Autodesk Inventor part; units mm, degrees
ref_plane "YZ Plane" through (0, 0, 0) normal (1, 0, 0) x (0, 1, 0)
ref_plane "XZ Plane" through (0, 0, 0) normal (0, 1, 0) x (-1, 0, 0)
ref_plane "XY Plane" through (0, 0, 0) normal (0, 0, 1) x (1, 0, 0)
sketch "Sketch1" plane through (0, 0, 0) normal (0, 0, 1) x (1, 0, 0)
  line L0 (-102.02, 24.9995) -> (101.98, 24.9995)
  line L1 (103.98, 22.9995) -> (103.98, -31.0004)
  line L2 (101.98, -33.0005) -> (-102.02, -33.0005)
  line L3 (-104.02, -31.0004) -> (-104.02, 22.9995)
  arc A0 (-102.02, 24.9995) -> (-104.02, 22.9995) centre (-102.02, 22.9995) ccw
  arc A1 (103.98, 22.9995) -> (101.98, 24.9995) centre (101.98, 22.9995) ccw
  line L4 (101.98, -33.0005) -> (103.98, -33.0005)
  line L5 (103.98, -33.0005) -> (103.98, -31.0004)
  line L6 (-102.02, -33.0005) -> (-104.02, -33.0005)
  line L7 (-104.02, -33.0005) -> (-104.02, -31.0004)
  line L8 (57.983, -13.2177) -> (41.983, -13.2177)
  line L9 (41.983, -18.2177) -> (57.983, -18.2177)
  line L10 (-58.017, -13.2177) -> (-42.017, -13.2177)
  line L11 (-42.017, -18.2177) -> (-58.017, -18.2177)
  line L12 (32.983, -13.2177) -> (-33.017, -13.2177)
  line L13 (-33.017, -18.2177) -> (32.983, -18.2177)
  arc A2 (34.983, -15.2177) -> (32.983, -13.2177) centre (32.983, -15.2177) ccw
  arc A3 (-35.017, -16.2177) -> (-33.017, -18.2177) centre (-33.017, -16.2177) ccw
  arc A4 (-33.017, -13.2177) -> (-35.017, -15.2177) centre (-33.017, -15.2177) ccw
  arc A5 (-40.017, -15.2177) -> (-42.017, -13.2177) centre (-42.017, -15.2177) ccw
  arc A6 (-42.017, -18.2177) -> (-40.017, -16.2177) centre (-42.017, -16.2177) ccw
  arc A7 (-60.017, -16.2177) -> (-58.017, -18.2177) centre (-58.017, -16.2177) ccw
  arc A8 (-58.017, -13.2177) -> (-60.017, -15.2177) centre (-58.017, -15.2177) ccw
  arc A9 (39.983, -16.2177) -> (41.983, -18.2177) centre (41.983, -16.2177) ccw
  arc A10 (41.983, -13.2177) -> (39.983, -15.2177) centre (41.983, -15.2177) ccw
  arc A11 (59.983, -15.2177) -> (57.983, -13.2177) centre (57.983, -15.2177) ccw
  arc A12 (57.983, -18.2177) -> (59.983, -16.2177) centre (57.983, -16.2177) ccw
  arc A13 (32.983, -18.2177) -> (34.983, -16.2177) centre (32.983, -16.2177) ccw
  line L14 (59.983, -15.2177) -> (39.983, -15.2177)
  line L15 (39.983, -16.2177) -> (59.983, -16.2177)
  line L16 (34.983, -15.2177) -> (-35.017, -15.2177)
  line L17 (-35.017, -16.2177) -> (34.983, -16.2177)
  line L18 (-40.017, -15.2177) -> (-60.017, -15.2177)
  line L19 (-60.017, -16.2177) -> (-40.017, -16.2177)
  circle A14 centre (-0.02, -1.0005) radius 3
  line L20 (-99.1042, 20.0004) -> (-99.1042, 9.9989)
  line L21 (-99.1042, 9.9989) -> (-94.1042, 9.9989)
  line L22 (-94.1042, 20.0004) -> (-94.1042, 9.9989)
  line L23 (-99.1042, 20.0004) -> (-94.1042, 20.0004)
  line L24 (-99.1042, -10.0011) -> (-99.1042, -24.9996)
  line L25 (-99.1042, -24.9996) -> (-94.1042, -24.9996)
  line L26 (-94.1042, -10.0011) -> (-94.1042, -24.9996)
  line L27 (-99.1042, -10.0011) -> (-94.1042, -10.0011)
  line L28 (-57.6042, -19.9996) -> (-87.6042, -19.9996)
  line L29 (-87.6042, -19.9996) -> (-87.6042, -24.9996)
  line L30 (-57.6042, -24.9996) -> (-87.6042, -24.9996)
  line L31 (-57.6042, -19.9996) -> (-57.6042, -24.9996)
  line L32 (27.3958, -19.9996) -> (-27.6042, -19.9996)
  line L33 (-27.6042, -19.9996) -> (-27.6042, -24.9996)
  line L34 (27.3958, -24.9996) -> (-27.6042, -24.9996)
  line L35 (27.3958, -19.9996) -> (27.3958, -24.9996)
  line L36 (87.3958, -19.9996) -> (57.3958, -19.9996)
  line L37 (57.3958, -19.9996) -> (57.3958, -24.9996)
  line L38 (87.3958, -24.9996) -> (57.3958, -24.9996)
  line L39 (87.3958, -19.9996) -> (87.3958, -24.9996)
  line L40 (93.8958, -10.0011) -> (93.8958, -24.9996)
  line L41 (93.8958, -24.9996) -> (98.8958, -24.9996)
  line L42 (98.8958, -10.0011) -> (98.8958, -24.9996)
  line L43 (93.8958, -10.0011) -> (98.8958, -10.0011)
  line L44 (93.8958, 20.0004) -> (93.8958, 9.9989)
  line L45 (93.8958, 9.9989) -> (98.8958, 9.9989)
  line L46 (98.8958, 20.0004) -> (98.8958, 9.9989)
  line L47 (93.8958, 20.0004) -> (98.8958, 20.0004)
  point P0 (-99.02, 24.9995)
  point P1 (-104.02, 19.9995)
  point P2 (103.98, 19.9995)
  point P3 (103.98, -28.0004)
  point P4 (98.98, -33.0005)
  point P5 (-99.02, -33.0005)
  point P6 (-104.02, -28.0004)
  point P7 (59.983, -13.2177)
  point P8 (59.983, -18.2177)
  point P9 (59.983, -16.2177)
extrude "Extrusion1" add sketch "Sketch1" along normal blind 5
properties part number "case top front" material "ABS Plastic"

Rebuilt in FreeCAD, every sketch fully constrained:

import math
import FreeCAD as App
import Part
import Sketcher
from FreeCAD import Vector
Q = App.Units.Quantity


def add_polygon(sketch, points):
    """Adds a closed chain of lines whose ends are joined by coincident constraints."""
    first, n = sketch.GeometryCount, len(points)
    for a, b in zip(points, points[1:] + points[:1]):
        sketch.addGeometry(Part.LineSegment(App.Vector(*a, 0), App.Vector(*b, 0)), False)
    for i in range(n):
        sketch.addConstraint(Sketcher.Constraint("Coincident", first + i, 2, first + (i + 1) % n, 1))

doc = App.newDocument("Part")
body = doc.addObject("PartDesign::Body", "Body")

sketch1 = body.newObject("Sketcher::SketchObject", "Sketch")
sketch1.AttachmentSupport = (doc.getObject("XY_Plane"), [""])
sketch1.MapMode = "FlatFace"
sketch1.addGeometry(Part.LineSegment(Vector(101.98, 24.9995, 0), Vector(-102.02, 24.9995, 0)), False)
sketch1.addGeometry(Part.ArcOfCircle(Part.Circle(Vector(-102.02, 22.9995, 0), Vector(0, 0, 1), 2), math.radians(90), math.radians(180)), False)
sketch1.addGeometry(Part.LineSegment(Vector(-104.02, 22.9995, 0), Vector(-104.02, -33.0005, 0)), False)
sketch1.addGeometry(Part.LineSegment(Vector(-104.02, -33.0005, 0), Vector(103.98, -33.0005, 0)), False)
sketch1.addGeometry(Part.LineSegment(Vector(103.98, -33.0005, 0), Vector(103.98, 22.9995, 0)), False)
sketch1.addGeometry(Part.ArcOfCircle(Part.Circle(Vector(101.98, 22.9995, 0), Vector(0, 0, 1), 2), math.radians(0), math.radians(90)), False)
add_polygon(sketch1, [(-87.6042, -19.9996), (-57.6042, -19.9996), (-57.6042, -24.9996), (-87.6042, -24.9996)])
add_polygon(sketch1, [(-27.6042, -19.9996), (27.3958, -19.9996), (27.3958, -24.9996), (-27.6042, -24.9996)])
add_polygon(sketch1, [(-99.1042, -24.9996), (-99.1042, -10.0011), (-94.1042, -10.0011), (-94.1042, -24.9996)])
sketch1.addGeometry(Part.ArcOfCircle(Part.Circle(Vector(-42.017, -16.2177, 0), Vector(0, 0, 1), 2), math.radians(-90), math.radians(0)), False)
sketch1.addGeometry(Part.LineSegment(Vector(-42.017, -18.2177, 0), Vector(-58.017, -18.2177, 0)), False)
sketch1.addGeometry(Part.ArcOfCircle(Part.Circle(Vector(-58.017, -16.2177, 0), Vector(0, 0, 1), 2), math.radians(180), math.radians(270)), False)
sketch1.addGeometry(Part.LineSegment(Vector(-60.017, -16.2177, 0), Vector(-40.017, -16.2177, 0)), False)
sketch1.addGeometry(Part.ArcOfCircle(Part.Circle(Vector(-58.017, -15.2177, 0), Vector(0, 0, 1), 2), math.radians(90), math.radians(180)), False)
sketch1.addGeometry(Part.LineSegment(Vector(-58.017, -13.2177, 0), Vector(-42.017, -13.2177, 0)), False)
sketch1.addGeometry(Part.ArcOfCircle(Part.Circle(Vector(-42.017, -15.2177, 0), Vector(0, 0, 1), 2), math.radians(0), math.radians(90)), False)
sketch1.addGeometry(Part.LineSegment(Vector(-40.017, -15.2177, 0), Vector(-60.017, -15.2177, 0)), False)
add_polygon(sketch1, [(57.3958, -19.9996), (87.3958, -19.9996), (87.3958, -24.9996), (57.3958, -24.9996)])
sketch1.addGeometry(Part.LineSegment(Vector(32.983, -18.2177, 0), Vector(-33.017, -18.2177, 0)), False)
sketch1.addGeometry(Part.ArcOfCircle(Part.Circle(Vector(-33.017, -16.2177, 0), Vector(0, 0, 1), 2), math.radians(180), math.radians(270)), False)
sketch1.addGeometry(Part.LineSegment(Vector(-35.017, -16.2177, 0), Vector(34.983, -16.2177, 0)), False)
sketch1.addGeometry(Part.ArcOfCircle(Part.Circle(Vector(32.983, -16.2177, 0), Vector(0, 0, 1), 2), math.radians(-90), math.radians(0)), False)
sketch1.addGeometry(Part.LineSegment(Vector(-33.017, -13.2177, 0), Vector(32.983, -13.2177, 0)), False)
sketch1.addGeometry(Part.ArcOfCircle(Part.Circle(Vector(32.983, -15.2177, 0), Vector(0, 0, 1), 2), math.radians(0), math.radians(90)), False)
sketch1.addGeometry(Part.LineSegment(Vector(34.983, -15.2177, 0), Vector(-35.017, -15.2177, 0)), False)
sketch1.addGeometry(Part.ArcOfCircle(Part.Circle(Vector(-33.017, -15.2177, 0), Vector(0, 0, 1), 2), math.radians(90), math.radians(180)), False)
sketch1.addGeometry(Part.LineSegment(Vector(57.983, -18.2177, 0), Vector(41.983, -18.2177, 0)), False)
sketch1.addGeometry(Part.ArcOfCircle(Part.Circle(Vector(41.983, -16.2177, 0), Vector(0, 0, 1), 2), math.radians(180), math.radians(270)), False)
sketch1.addGeometry(Part.LineSegment(Vector(39.983, -16.2177, 0), Vector(59.983, -16.2177, 0)), False)
sketch1.addGeometry(Part.ArcOfCircle(Part.Circle(Vector(57.983, -16.2177, 0), Vector(0, 0, 1), 2), math.radians(-90), math.radians(0)), False)
sketch1.addGeometry(Part.LineSegment(Vector(41.983, -13.2177, 0), Vector(57.983, -13.2177, 0)), False)
sketch1.addGeometry(Part.ArcOfCircle(Part.Circle(Vector(57.983, -15.2177, 0), Vector(0, 0, 1), 2), math.radians(0), math.radians(90)), False)
sketch1.addGeometry(Part.LineSegment(Vector(59.983, -15.2177, 0), Vector(39.983, -15.2177, 0)), False)
sketch1.addGeometry(Part.ArcOfCircle(Part.Circle(Vector(41.983, -15.2177, 0), Vector(0, 0, 1), 2), math.radians(90), math.radians(180)), False)
add_polygon(sketch1, [(93.8958, -24.9996), (93.8958, -10.0011), (98.8958, -10.0011), (98.8958, -24.9996)])
add_polygon(sketch1, [(-99.1042, 9.9989), (-99.1042, 20.0004), (-94.1042, 20.0004), (-94.1042, 9.9989)])
sketch1.addGeometry(Part.Circle(Vector(-0.02, -1.0005, 0), Vector(0, 0, 1), 3), False)
add_polygon(sketch1, [(93.8958, 9.9989), (93.8958, 20.0004), (98.8958, 20.0004), (98.8958, 9.9989)])
sketch1.addConstraint(Sketcher.Constraint("Tangent", 0, 2, 1, 1))
sketch1.addConstraint(Sketcher.Constraint("Tangent", 1, 2, 2, 1))
sketch1.addConstraint(Sketcher.Constraint("Coincident", 2, 2, 3, 1))
sketch1.addConstraint(Sketcher.Constraint("Coincident", 3, 2, 4, 1))
sketch1.addConstraint(Sketcher.Constraint("Tangent", 4, 2, 5, 1))
sketch1.addConstraint(Sketcher.Constraint("Tangent", 5, 2, 0, 1))
sketch1.addConstraint(Sketcher.Constraint("Tangent", 18, 1, 19, 1))
sketch1.addConstraint(Sketcher.Constraint("Tangent", 19, 2, 20, 2))
sketch1.addConstraint(Sketcher.Constraint("Coincident", 20, 1, 21, 1))
sketch1.addConstraint(Sketcher.Constraint("Coincident", 21, 2, 18, 2))
sketch1.addConstraint(Sketcher.Constraint("Tangent", 22, 1, 23, 1))
sketch1.addConstraint(Sketcher.Constraint("Tangent", 23, 2, 24, 2))
sketch1.addConstraint(Sketcher.Constraint("Coincident", 24, 1, 25, 1))
sketch1.addConstraint(Sketcher.Constraint("Coincident", 25, 2, 22, 2))
sketch1.addConstraint(Sketcher.Constraint("Tangent", 30, 2, 31, 2))
sketch1.addConstraint(Sketcher.Constraint("Coincident", 31, 1, 32, 1))
sketch1.addConstraint(Sketcher.Constraint("Coincident", 32, 2, 33, 2))
sketch1.addConstraint(Sketcher.Constraint("Tangent", 33, 1, 30, 1))
sketch1.addConstraint(Sketcher.Constraint("Tangent", 34, 2, 35, 2))
sketch1.addConstraint(Sketcher.Constraint("Coincident", 35, 1, 36, 1))
sketch1.addConstraint(Sketcher.Constraint("Coincident", 36, 2, 37, 2))
sketch1.addConstraint(Sketcher.Constraint("Tangent", 37, 1, 34, 1))
sketch1.addConstraint(Sketcher.Constraint("Tangent", 38, 2, 39, 2))
sketch1.addConstraint(Sketcher.Constraint("Coincident", 39, 1, 40, 1))
sketch1.addConstraint(Sketcher.Constraint("Coincident", 40, 2, 41, 2))
sketch1.addConstraint(Sketcher.Constraint("Tangent", 41, 1, 38, 1))
sketch1.addConstraint(Sketcher.Constraint("Tangent", 42, 2, 43, 2))
sketch1.addConstraint(Sketcher.Constraint("Coincident", 43, 1, 44, 1))
sketch1.addConstraint(Sketcher.Constraint("Coincident", 44, 2, 45, 2))
sketch1.addConstraint(Sketcher.Constraint("Tangent", 45, 1, 42, 1))
sketch1.addConstraint(Sketcher.Constraint("Horizontal", 0))
sketch1.addConstraint(Sketcher.Constraint("Vertical", 2))
sketch1.addConstraint(Sketcher.Constraint("Horizontal", 3))
sketch1.addConstraint(Sketcher.Constraint("Vertical", 4))
sketch1.addConstraint(Sketcher.Constraint("Horizontal", 6))
sketch1.addConstraint(Sketcher.Constraint("Vertical", 7))
sketch1.addConstraint(Sketcher.Constraint("Horizontal", 8))
sketch1.addConstraint(Sketcher.Constraint("Vertical", 9))
sketch1.addConstraint(Sketcher.Constraint("Horizontal", 10))
sketch1.addConstraint(Sketcher.Constraint("Vertical", 11))
sketch1.addConstraint(Sketcher.Constraint("Horizontal", 12))
sketch1.addConstraint(Sketcher.Constraint("Vertical", 13))
sketch1.addConstraint(Sketcher.Constraint("Vertical", 14))
sketch1.addConstraint(Sketcher.Constraint("Horizontal", 15))
sketch1.addConstraint(Sketcher.Constraint("Vertical", 16))
sketch1.addConstraint(Sketcher.Constraint("Horizontal", 17))
sketch1.addConstraint(Sketcher.Constraint("Horizontal", 19))
sketch1.addConstraint(Sketcher.Constraint("Horizontal", 21))
sketch1.addConstraint(Sketcher.Constraint("Horizontal", 23))
sketch1.addConstraint(Sketcher.Constraint("Horizontal", 25))
sketch1.addConstraint(Sketcher.Constraint("Horizontal", 26))
sketch1.addConstraint(Sketcher.Constraint("Vertical", 27))
sketch1.addConstraint(Sketcher.Constraint("Horizontal", 28))
sketch1.addConstraint(Sketcher.Constraint("Vertical", 29))
sketch1.addConstraint(Sketcher.Constraint("Horizontal", 30))
sketch1.addConstraint(Sketcher.Constraint("Horizontal", 32))
sketch1.addConstraint(Sketcher.Constraint("Horizontal", 34))
sketch1.addConstraint(Sketcher.Constraint("Horizontal", 36))
sketch1.addConstraint(Sketcher.Constraint("Horizontal", 38))
sketch1.addConstraint(Sketcher.Constraint("Horizontal", 40))
sketch1.addConstraint(Sketcher.Constraint("Horizontal", 42))
sketch1.addConstraint(Sketcher.Constraint("Horizontal", 44))
sketch1.addConstraint(Sketcher.Constraint("Vertical", 46))
sketch1.addConstraint(Sketcher.Constraint("Horizontal", 47))
sketch1.addConstraint(Sketcher.Constraint("Vertical", 48))
sketch1.addConstraint(Sketcher.Constraint("Horizontal", 49))
sketch1.addConstraint(Sketcher.Constraint("Vertical", 50))
sketch1.addConstraint(Sketcher.Constraint("Horizontal", 51))
sketch1.addConstraint(Sketcher.Constraint("Vertical", 52))
sketch1.addConstraint(Sketcher.Constraint("Horizontal", 53))
sketch1.addConstraint(Sketcher.Constraint("Vertical", 55))
sketch1.addConstraint(Sketcher.Constraint("Horizontal", 56))
sketch1.addConstraint(Sketcher.Constraint("Vertical", 57))
sketch1.addConstraint(Sketcher.Constraint("Horizontal", 58))
sketch1.addConstraint(Sketcher.Constraint("Equal", 1, 5))
sketch1.addConstraint(Sketcher.Constraint("Equal", 5, 18))
sketch1.addConstraint(Sketcher.Constraint("Equal", 18, 20))
sketch1.addConstraint(Sketcher.Constraint("Equal", 20, 22))
sketch1.addConstraint(Sketcher.Constraint("Equal", 22, 24))
sketch1.addConstraint(Sketcher.Constraint("Equal", 24, 31))
sketch1.addConstraint(Sketcher.Constraint("Equal", 31, 33))
sketch1.addConstraint(Sketcher.Constraint("Equal", 33, 35))
sketch1.addConstraint(Sketcher.Constraint("Equal", 35, 37))
sketch1.addConstraint(Sketcher.Constraint("Equal", 37, 39))
sketch1.addConstraint(Sketcher.Constraint("Equal", 39, 41))
sketch1.addConstraint(Sketcher.Constraint("Equal", 41, 43))
sketch1.addConstraint(Sketcher.Constraint("Equal", 43, 45))
sketch1.addConstraint(Sketcher.Constraint("Horizontal", 20, 3, 31, 3))
sketch1.addConstraint(Sketcher.Constraint("Horizontal", 24, 3, 35, 3))
sketch1.addConstraint(Sketcher.Constraint("Horizontal", 33, 3, 39, 3))
sketch1.addConstraint(Sketcher.Constraint("Horizontal", 37, 3, 43, 3))
sketch1.addConstraint(Sketcher.Constraint("Horizontal", 9, 2, 10, 2))
sketch1.addConstraint(Sketcher.Constraint("Horizontal", 8, 2, 11, 2))
sketch1.addConstraint(Sketcher.Constraint("Horizontal", 12, 2, 16, 2))
sketch1.addConstraint(Sketcher.Constraint("Horizontal", 41, 3, 20, 1))
sketch1.addConstraint(Sketcher.Constraint("Horizontal", 45, 3, 24, 1))
sketch1.addConstraint(Sketcher.Constraint("Horizontal", 13, 2, 26, 2))
sketch1.addConstraint(Sketcher.Constraint("Horizontal", 17, 2, 27, 2))
sketch1.addConstraint(Sketcher.Constraint("Horizontal", 21, 2, 31, 1))
sketch1.addConstraint(Sketcher.Constraint("Horizontal", 25, 2, 35, 1))
sketch1.addConstraint(Sketcher.Constraint("Horizontal", 32, 2, 39, 1))
sketch1.addConstraint(Sketcher.Constraint("Horizontal", 36, 2, 43, 1))
sketch1.addConstraint(Sketcher.Constraint("Horizontal", 15, 2, 46, 2))
sketch1.addConstraint(Sketcher.Constraint("Horizontal", 28, 2, 48, 2))
sketch1.addConstraint(Sketcher.Constraint("Horizontal", 51, 2, 55, 2))
sketch1.addConstraint(Sketcher.Constraint("Horizontal", 53, 2, 57, 2))
sketch1.addConstraint(Sketcher.Constraint("Vertical", 20, 3, 22, 3))
sketch1.addConstraint(Sketcher.Constraint("Vertical", 18, 3, 24, 3))
sketch1.addConstraint(Sketcher.Constraint("Vertical", 33, 3, 35, 3))
sketch1.addConstraint(Sketcher.Constraint("Vertical", 31, 3, 37, 3))
sketch1.addConstraint(Sketcher.Constraint("Vertical", 41, 3, 43, 3))
sketch1.addConstraint(Sketcher.Constraint("Vertical", 39, 3, 45, 3))
sketch1.addConstraint(Sketcher.Constraint("Vertical", 17, 2, 50, 2))
sketch1.addConstraint(Sketcher.Constraint("Vertical", 16, 2, 51, 2))
sketch1.addConstraint(Sketcher.Constraint("Vertical", 49, 2, 55, 2))
sketch1.addConstraint(Sketcher.Constraint("Vertical", 48, 2, 56, 2))
sketch1.addConstraint(Sketcher.Constraint("Equal", 8, 26))
sketch1.addConstraint(Sketcher.Constraint("Equal", 23, 38))
sketch1.addConstraint(Sketcher.Constraint("Equal", 17, 47))
sketch1.addConstraint(Sketcher.Constraint("Equal", 58, 7))
sketch1.addConstraint(Sketcher.Constraint("Diameter", 54, Q("6 mm")))
sketch1.addConstraint(Sketcher.Constraint("Radius", 1, Q("2 mm")))
sketch1.addConstraint(Sketcher.Constraint("DistanceX", 0, 2, 0, 1, Q("204 mm")))
sketch1.addConstraint(Sketcher.Constraint("DistanceX", 6, 1, 6, 2, Q("30 mm")))
sketch1.addConstraint(Sketcher.Constraint("DistanceX", 10, 1, 10, 2, Q("55 mm")))
sketch1.addConstraint(Sketcher.Constraint("DistanceX", 15, 1, 15, 2, Q("5 mm")))
sketch1.addConstraint(Sketcher.Constraint("DistanceX", 19, 2, 19, 1, Q("16 mm")))
sketch1.addConstraint(Sketcher.Constraint("DistanceX", 30, 2, 30, 1, Q("66 mm")))
sketch1.addConstraint(Sketcher.Constraint("DistanceY", 2, 2, 2, 1, Q("56 mm")))
sketch1.addConstraint(Sketcher.Constraint("DistanceX", 1, 3, -1, 1, Q("102.02 mm")))
sketch1.addConstraint(Sketcher.Constraint("DistanceX", 54, 3, -1, 1, Q("0.02 mm")))
sketch1.addConstraint(Sketcher.Constraint("DistanceY", 14, 1, 14, 2, Q("14.9985 mm")))
sketch1.addConstraint(Sketcher.Constraint("DistanceY", 50, 1, 50, 2, Q("10.0015 mm")))
sketch1.addConstraint(Sketcher.Constraint("DistanceX", 18, 3, -1, 1, Q("42.017 mm")))
sketch1.addConstraint(Sketcher.Constraint("DistanceX", 31, 3, -1, 1, Q("33.017 mm")))
sketch1.addConstraint(Sketcher.Constraint("DistanceX", -1, 1, 39, 3, Q("41.983 mm")))
sketch1.addConstraint(Sketcher.Constraint("DistanceY", 14, 2, -1, 1, Q("10.001 mm")))
sketch1.addConstraint(Sketcher.Constraint("DistanceY", -1, 1, 52, 2, Q("9.999 mm")))
sketch1.addConstraint(Sketcher.Constraint("DistanceY", -1, 1, 1, 3, Q("22.9995 mm")))
sketch1.addConstraint(Sketcher.Constraint("DistanceY", 18, 3, -1, 1, Q("16.2177 mm")))
sketch1.addConstraint(Sketcher.Constraint("DistanceY", 22, 3, -1, 1, Q("15.2177 mm")))
sketch1.addConstraint(Sketcher.Constraint("DistanceY", 54, 3, -1, 1, Q("1.0005 mm")))
sketch1.addConstraint(Sketcher.Constraint("DistanceX", 6, 2, -1, 1, Q("57.6042 mm")))
sketch1.addConstraint(Sketcher.Constraint("DistanceX", -1, 1, 10, 2, Q("27.3958 mm")))
sketch1.addConstraint(Sketcher.Constraint("DistanceX", 14, 2, -1, 1, Q("99.1042 mm")))
sketch1.addConstraint(Sketcher.Constraint("DistanceX", -1, 1, 26, 2, Q("87.3958 mm")))
sketch1.addConstraint(Sketcher.Constraint("DistanceX", -1, 1, 46, 2, Q("93.8958 mm")))
pad1 = body.newObject("PartDesign::Pad", "Pad")
pad1.Profile = sketch1
pad1.Length = 5

doc.recompute()
